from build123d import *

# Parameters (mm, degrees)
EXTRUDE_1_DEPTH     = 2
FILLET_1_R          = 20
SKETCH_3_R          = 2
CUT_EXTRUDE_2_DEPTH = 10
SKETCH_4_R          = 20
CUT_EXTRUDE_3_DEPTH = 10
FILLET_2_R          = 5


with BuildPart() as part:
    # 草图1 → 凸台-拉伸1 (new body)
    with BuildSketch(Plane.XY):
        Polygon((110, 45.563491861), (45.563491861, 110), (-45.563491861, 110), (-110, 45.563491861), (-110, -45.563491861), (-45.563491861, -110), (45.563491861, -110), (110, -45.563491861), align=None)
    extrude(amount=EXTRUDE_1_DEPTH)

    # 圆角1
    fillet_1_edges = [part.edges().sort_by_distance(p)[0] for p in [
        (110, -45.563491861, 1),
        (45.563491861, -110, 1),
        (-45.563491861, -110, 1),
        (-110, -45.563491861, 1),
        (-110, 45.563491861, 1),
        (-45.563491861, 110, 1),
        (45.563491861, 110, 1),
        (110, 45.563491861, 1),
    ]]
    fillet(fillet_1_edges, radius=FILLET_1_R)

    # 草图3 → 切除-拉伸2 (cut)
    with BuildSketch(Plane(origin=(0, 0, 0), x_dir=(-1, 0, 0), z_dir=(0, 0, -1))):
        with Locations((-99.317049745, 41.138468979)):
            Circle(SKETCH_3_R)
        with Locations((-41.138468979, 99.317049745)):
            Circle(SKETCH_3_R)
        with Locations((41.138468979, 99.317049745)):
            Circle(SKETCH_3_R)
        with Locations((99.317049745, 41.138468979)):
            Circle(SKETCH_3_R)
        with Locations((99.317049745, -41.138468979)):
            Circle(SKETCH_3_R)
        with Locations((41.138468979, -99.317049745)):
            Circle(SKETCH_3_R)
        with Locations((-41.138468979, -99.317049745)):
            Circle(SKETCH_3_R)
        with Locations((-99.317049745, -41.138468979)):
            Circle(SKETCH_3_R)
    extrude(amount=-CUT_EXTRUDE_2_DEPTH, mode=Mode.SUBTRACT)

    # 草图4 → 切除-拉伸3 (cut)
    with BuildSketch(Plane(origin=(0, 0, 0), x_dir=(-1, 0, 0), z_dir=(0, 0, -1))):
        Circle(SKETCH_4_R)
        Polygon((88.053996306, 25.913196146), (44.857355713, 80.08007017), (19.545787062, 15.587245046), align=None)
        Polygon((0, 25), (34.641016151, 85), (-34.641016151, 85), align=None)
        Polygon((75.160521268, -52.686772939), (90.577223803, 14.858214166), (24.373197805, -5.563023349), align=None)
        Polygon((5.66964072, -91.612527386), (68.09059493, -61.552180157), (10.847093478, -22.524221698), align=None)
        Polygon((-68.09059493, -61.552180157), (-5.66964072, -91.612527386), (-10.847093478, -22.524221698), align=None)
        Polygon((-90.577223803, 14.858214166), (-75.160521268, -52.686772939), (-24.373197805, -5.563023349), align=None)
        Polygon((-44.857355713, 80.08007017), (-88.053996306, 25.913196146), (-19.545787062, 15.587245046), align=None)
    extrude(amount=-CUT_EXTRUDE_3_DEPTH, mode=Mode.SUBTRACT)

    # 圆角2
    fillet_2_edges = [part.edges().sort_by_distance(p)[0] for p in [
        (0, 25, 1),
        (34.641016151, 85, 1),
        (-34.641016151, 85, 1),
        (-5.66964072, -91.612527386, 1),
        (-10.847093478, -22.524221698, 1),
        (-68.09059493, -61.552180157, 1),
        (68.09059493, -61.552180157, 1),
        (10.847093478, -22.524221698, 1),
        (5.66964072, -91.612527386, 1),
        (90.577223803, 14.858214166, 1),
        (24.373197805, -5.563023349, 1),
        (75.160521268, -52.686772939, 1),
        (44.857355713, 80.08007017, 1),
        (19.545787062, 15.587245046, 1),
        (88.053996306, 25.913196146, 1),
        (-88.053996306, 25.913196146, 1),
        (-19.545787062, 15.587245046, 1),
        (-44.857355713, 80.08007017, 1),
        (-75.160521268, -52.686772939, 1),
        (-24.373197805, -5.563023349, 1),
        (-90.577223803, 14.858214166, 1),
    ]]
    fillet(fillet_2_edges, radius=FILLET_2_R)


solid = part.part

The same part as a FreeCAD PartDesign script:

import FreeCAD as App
import Part
import Sketcher
from FreeCAD import Vector
Q = App.Units.Quantity


def edges_at(feature, points):
    """Names of the edges that pass closest to the given points."""
    edges = feature.Shape.Edges
    near = lambda p: min(range(len(edges)), key=lambda i: edges[i].distToShape(Part.Vertex(*p))[0])
    return sorted({f"Edge{near(p) + 1}" for p in points})


def add_polygon(sketch, points):
    """Adds a closed chain of lines whose ends are joined by coincident constraints."""
    first, n = sketch.GeometryCount, len(points)
    for a, b in zip(points, points[1:] + points[:1]):
        sketch.addGeometry(Part.LineSegment(App.Vector(*a, 0), App.Vector(*b, 0)), False)
    for i in range(n):
        sketch.addConstraint(Sketcher.Constraint("Coincident", first + i, 2, first + (i + 1) % n, 1))

doc = App.newDocument("Part")
params = doc.addObject("Spreadsheet::Sheet", "Params")
for row, (alias, value) in enumerate([
    ("pad1_length", "2 mm"),
    ("fillet_radius", "20 mm"),
    ("sketch2_diameter", "4 mm"),
    ("pocket1_length", "10 mm"),
    ("sketch3_diameter", "40 mm"),
    ("pocket2_length", "10 mm"),
    ("fillet2_radius", "5 mm"),
], start=1):
    params.set(f"A{row}", alias)
    params.set(f"B{row}", "=" + value)
    params.setAlias(f"B{row}", alias)

body = doc.addObject("PartDesign::Body", "Body")

sketch1 = body.newObject("Sketcher::SketchObject", "Sketch")
sketch1.AttachmentSupport = (doc.getObject("XY_Plane"), [""])
sketch1.MapMode = "FlatFace"
add_polygon(sketch1, [(110, 46), (46, 110), (-46, 110), (-110, 46), (-110, -46), (-46, -110), (46, -110), (110, -46)])
sketch1.addConstraint(Sketcher.Constraint("Horizontal", 1))
sketch1.addConstraint(Sketcher.Constraint("Vertical", 3))
sketch1.addConstraint(Sketcher.Constraint("Horizontal", 5))
sketch1.addConstraint(Sketcher.Constraint("Vertical", 7))
sketch1.addConstraint(Sketcher.Constraint("Symmetric", 0, 2, 4, 2, -1, 1))
sketch1.addConstraint(Sketcher.Constraint("Symmetric", 2, 2, 6, 2, -1, 1))
sketch1.addConstraint(Sketcher.Constraint("Perpendicular", 0, 2))
sketch1.addConstraint(Sketcher.Constraint("Perpendicular", 2, 4))
sketch1.addConstraint(Sketcher.Constraint("Perpendicular", 4, 6))
sketch1.addConstraint(Sketcher.Constraint("Horizontal", 3, 2, 6, 2))
sketch1.addConstraint(Sketcher.Constraint("Vertical", 1, 2, 4, 2))
sketch1.addConstraint(Sketcher.Constraint("Equal", 5, 3))
sketch1.addConstraint(Sketcher.Constraint("DistanceY", -1, 1, 0, 2, Q("110 mm")))
sketch1.addConstraint(Sketcher.Constraint("DistanceX", 1, 2, 1, 1, Q("91.126984 mm")))
pad1 = body.newObject("PartDesign::Pad", "Pad")
pad1.Profile = sketch1
pad1.setExpression("Length", "Params.pad1_length")
doc.recompute()

fillet = body.newObject("PartDesign::Fillet", "Fillet")
fillet.Base = (pad1, edges_at(pad1, [
    (110, -45.563, 1),
    (45.563, -110, 1),
    (-45.563, -110, 1),
    (-110, -45.563, 1),
    (-110, 45.563, 1),
    (-45.563, 110, 1),
    (45.563, 110, 1),
    (110, 45.563, 1),
]))
fillet.setExpression("Radius", "Params.fillet_radius")

sketch2 = body.newObject("Sketcher::SketchObject", "Sketch001")
sketch2.AttachmentSupport = (doc.getObject("XY_Plane"), [""])
sketch2.MapMode = "FlatFace"
sketch2.addGeometry(Part.Circle(Vector(99.3, 41.1, 0), Vector(0, 0, 1), 2), False)
sketch2.addGeometry(Part.Circle(Vector(41.1, 99.3, 0), Vector(0, 0, 1), 2), False)
sketch2.addGeometry(Part.Circle(Vector(-41.1, 99.3, 0), Vector(0, 0, 1), 2), False)
sketch2.addGeometry(Part.Circle(Vector(-99.3, 41.1, 0), Vector(0, 0, 1), 2), False)
sketch2.addGeometry(Part.Circle(Vector(-99.3, -41.1, 0), Vector(0, 0, 1), 2), False)
sketch2.addGeometry(Part.Circle(Vector(-41.1, -99.3, 0), Vector(0, 0, 1), 2), False)
sketch2.addGeometry(Part.Circle(Vector(41.1, -99.3, 0), Vector(0, 0, 1), 2), False)
sketch2.addGeometry(Part.Circle(Vector(99.3, -41.1, 0), Vector(0, 0, 1), 2), False)
sketch2.addConstraint(Sketcher.Constraint("Equal", 0, 1))
sketch2.addConstraint(Sketcher.Constraint("Equal", 1, 2))
sketch2.addConstraint(Sketcher.Constraint("Equal", 2, 3))
sketch2.addConstraint(Sketcher.Constraint("Equal", 3, 4))
sketch2.addConstraint(Sketcher.Constraint("Equal", 4, 5))
sketch2.addConstraint(Sketcher.Constraint("Equal", 5, 6))
sketch2.addConstraint(Sketcher.Constraint("Equal", 6, 7))
sketch2.addConstraint(Sketcher.Constraint("Symmetric", 0, 3, 4, 3, -1, 1))
sketch2.addConstraint(Sketcher.Constraint("Symmetric", 1, 3, 5, 3, -1, 1))
sketch2.addConstraint(Sketcher.Constraint("Symmetric", 2, 3, 6, 3, -1, 1))
sketch2.addConstraint(Sketcher.Constraint("Symmetric", 3, 3, 7, 3, -1, 1))
sketch2.addConstraint(Sketcher.Constraint("Symmetric", 1, 3, 2, 3, -2))
sketch2.addConstraint(Sketcher.Constraint("Symmetric", 0, 3, 3, 3, -2))
sketch2.addConstraint(Sketcher.Constraint("Diameter", 0, Q("4 mm")))
sketch2.addConstraint(Sketcher.Constraint("DistanceX", 3, 3, 0, 3, Q("198.634099 mm")))
sketch2.addConstraint(Sketcher.Constraint("DistanceY", 5, 3, 2, 3, Q("198.634099 mm")))
sketch2.addConstraint(Sketcher.Constraint("DistanceY", -1, 1, 0, 3, Q("41.138469 mm")))
sketch2.addConstraint(Sketcher.Constraint("DistanceX", -1, 1, 1, 3, Q("41.138469 mm")))
sketch2.setExpression("Constraints[13]", "Params.sketch2_diameter")
pocket1 = body.newObject("PartDesign::Pocket", "Pocket")
pocket1.Profile = sketch2
pocket1.setExpression("Length", "Params.pocket1_length")
pocket1.Reversed = True

sketch3 = body.newObject("Sketcher::SketchObject", "Sketch002")
sketch3.AttachmentSupport = (doc.getObject("XY_Plane"), [""])
sketch3.MapMode = "FlatFace"
sketch3.addGeometry(Part.Circle(Vector(0, 0, 0), Vector(0, 0, 1), 20), False)
add_polygon(sketch3, [(-88, 26), (-45, 80), (-20, 16)])
add_polygon(sketch3, [(0, 25), (-35, 85), (35, 85)])
add_polygon(sketch3, [(-75, -53), (-91, 15), (-24, -6)])
add_polygon(sketch3, [(-6, -92), (-68, -62), (-11, -23)])
add_polygon(sketch3, [(68, -62), (6, -92), (11, -23)])
add_polygon(sketch3, [(91, 15), (75, -53), (24, -6)])
add_polygon(sketch3, [(45, 80), (88, 26), (20, 16)])
sketch3.addConstraint(Sketcher.Constraint("Horizontal", 5))
sketch3.addConstraint(Sketcher.Constraint("Coincident", 0, 3, -1, 1))
sketch3.addConstraint(Sketcher.Constraint("Symmetric", 12, 2, 13, 2, -2))
sketch3.addConstraint(Sketcher.Constraint("Symmetric", 11, 2, 14, 2, -2))
sketch3.addConstraint(Sketcher.Constraint("Symmetric", 10, 2, 15, 2, -2))
sketch3.addConstraint(Sketcher.Constraint("Symmetric", 9, 2, 16, 2, -2))
sketch3.addConstraint(Sketcher.Constraint("Symmetric", 8, 2, 17, 2, -2))
sketch3.addConstraint(Sketcher.Constraint("Symmetric", 7, 2, 18, 2, -2))
sketch3.addConstraint(Sketcher.Constraint("Symmetric", 3, 2, 19, 2, -2))
sketch3.addConstraint(Sketcher.Constraint("Symmetric", 2, 2, 20, 2, -2))
sketch3.addConstraint(Sketcher.Constraint("Symmetric", 1, 2, 21, 2, -2))
sketch3.addConstraint(Sketcher.Constraint("PointOnObject", 6, 2, -2))
sketch3.addConstraint(Sketcher.Constraint("Equal", 1, 2))
sketch3.addConstraint(Sketcher.Constraint("Equal", 2, 3))
sketch3.addConstraint(Sketcher.Constraint("Equal", 3, 4))
sketch3.addConstraint(Sketcher.Constraint("Equal", 4, 6))
sketch3.addConstraint(Sketcher.Constraint("Equal", 6, 7))
sketch3.addConstraint(Sketcher.Constraint("Equal", 7, 8))
sketch3.addConstraint(Sketcher.Constraint("Equal", 8, 9))
sketch3.addConstraint(Sketcher.Constraint("Equal", 9, 10))
sketch3.addConstraint(Sketcher.Constraint("Equal", 10, 11))
sketch3.addConstraint(Sketcher.Constraint("Equal", 11, 12))
sketch3.addConstraint(Sketcher.Constraint("Diameter", 0, Q("40 mm")))
sketch3.addConstraint(Sketcher.Constraint("Angle", 4, Q("120 deg")))
sketch3.addConstraint(Sketcher.Constraint("DistanceY", -1, 1, 4, 2, Q("85 mm")))
sketch3.addConstraint(Sketcher.Constraint("DistanceY", -1, 1, 6, 2, Q("25 mm")))
sketch3.addConstraint(Sketcher.Constraint("DistanceX", 3, 2, 8, 2, Q("63.680799 mm")))
sketch3.addConstraint(Sketcher.Constraint("DistanceX", 3, 2, 10, 2, Q("19.963401 mm")))
sketch3.addConstraint(Sketcher.Constraint("DistanceY", 11, 2, 8, 2, Q("16.961198 mm")))
sketch3.addConstraint(Sketcher.Constraint("DistanceX", 10, 2, 11, 2, Q("57.243501 mm")))
sketch3.addConstraint(Sketcher.Constraint("DistanceY", -1, 1, 1, 2, Q("80.08007 mm")))
sketch3.addConstraint(Sketcher.Constraint("DistanceX", 9, 2, -1, 1, Q("75.160521 mm")))
sketch3.addConstraint(Sketcher.Constraint("DistanceY", 10, 2, -1, 1, Q("61.55218 mm")))
sketch3.addConstraint(Sketcher.Constraint("DistanceX", 12, 2, -1, 1, Q("5.669641 mm")))
sketch3.addConstraint(Sketcher.Constraint("DistanceX", 1, 2, 2, 2, Q("25.311569 mm")))
sketch3.setExpression("Constraints[43]", "Params.sketch3_diameter")
pocket2 = body.newObject("PartDesign::Pocket", "Pocket001")
pocket2.Profile = sketch3
pocket2.setExpression("Length", "Params.pocket2_length")
pocket2.Reversed = True
doc.recompute()

fillet2 = body.newObject("PartDesign::Fillet", "Fillet001")
fillet2.Base = (pocket2, edges_at(pocket2, [
    (0, 25, 1),
    (34.641, 85, 1),
    (-34.641, 85, 1),
    (-5.67, -91.613, 1),
    (-10.847, -22.524, 1),
    (-68.091, -61.552, 1),
    (68.091, -61.552, 1),
    (10.847, -22.524, 1),
    (5.67, -91.613, 1),
    (90.577, 14.858, 1),
    (24.373, -5.563, 1),
    (75.161, -52.687, 1),
    (44.857, 80.08, 1),
    (19.546, 15.587, 1),
    (88.054, 25.913, 1),
    (-88.054, 25.913, 1),
    (-19.546, 15.587, 1),
    (-44.857, 80.08, 1),
    (-75.161, -52.687, 1),
    (-24.373, -5.563, 1),
    (-90.577, 14.858, 1),
]))
fillet2.setExpression("Radius", "Params.fillet2_radius")

doc.recompute()
